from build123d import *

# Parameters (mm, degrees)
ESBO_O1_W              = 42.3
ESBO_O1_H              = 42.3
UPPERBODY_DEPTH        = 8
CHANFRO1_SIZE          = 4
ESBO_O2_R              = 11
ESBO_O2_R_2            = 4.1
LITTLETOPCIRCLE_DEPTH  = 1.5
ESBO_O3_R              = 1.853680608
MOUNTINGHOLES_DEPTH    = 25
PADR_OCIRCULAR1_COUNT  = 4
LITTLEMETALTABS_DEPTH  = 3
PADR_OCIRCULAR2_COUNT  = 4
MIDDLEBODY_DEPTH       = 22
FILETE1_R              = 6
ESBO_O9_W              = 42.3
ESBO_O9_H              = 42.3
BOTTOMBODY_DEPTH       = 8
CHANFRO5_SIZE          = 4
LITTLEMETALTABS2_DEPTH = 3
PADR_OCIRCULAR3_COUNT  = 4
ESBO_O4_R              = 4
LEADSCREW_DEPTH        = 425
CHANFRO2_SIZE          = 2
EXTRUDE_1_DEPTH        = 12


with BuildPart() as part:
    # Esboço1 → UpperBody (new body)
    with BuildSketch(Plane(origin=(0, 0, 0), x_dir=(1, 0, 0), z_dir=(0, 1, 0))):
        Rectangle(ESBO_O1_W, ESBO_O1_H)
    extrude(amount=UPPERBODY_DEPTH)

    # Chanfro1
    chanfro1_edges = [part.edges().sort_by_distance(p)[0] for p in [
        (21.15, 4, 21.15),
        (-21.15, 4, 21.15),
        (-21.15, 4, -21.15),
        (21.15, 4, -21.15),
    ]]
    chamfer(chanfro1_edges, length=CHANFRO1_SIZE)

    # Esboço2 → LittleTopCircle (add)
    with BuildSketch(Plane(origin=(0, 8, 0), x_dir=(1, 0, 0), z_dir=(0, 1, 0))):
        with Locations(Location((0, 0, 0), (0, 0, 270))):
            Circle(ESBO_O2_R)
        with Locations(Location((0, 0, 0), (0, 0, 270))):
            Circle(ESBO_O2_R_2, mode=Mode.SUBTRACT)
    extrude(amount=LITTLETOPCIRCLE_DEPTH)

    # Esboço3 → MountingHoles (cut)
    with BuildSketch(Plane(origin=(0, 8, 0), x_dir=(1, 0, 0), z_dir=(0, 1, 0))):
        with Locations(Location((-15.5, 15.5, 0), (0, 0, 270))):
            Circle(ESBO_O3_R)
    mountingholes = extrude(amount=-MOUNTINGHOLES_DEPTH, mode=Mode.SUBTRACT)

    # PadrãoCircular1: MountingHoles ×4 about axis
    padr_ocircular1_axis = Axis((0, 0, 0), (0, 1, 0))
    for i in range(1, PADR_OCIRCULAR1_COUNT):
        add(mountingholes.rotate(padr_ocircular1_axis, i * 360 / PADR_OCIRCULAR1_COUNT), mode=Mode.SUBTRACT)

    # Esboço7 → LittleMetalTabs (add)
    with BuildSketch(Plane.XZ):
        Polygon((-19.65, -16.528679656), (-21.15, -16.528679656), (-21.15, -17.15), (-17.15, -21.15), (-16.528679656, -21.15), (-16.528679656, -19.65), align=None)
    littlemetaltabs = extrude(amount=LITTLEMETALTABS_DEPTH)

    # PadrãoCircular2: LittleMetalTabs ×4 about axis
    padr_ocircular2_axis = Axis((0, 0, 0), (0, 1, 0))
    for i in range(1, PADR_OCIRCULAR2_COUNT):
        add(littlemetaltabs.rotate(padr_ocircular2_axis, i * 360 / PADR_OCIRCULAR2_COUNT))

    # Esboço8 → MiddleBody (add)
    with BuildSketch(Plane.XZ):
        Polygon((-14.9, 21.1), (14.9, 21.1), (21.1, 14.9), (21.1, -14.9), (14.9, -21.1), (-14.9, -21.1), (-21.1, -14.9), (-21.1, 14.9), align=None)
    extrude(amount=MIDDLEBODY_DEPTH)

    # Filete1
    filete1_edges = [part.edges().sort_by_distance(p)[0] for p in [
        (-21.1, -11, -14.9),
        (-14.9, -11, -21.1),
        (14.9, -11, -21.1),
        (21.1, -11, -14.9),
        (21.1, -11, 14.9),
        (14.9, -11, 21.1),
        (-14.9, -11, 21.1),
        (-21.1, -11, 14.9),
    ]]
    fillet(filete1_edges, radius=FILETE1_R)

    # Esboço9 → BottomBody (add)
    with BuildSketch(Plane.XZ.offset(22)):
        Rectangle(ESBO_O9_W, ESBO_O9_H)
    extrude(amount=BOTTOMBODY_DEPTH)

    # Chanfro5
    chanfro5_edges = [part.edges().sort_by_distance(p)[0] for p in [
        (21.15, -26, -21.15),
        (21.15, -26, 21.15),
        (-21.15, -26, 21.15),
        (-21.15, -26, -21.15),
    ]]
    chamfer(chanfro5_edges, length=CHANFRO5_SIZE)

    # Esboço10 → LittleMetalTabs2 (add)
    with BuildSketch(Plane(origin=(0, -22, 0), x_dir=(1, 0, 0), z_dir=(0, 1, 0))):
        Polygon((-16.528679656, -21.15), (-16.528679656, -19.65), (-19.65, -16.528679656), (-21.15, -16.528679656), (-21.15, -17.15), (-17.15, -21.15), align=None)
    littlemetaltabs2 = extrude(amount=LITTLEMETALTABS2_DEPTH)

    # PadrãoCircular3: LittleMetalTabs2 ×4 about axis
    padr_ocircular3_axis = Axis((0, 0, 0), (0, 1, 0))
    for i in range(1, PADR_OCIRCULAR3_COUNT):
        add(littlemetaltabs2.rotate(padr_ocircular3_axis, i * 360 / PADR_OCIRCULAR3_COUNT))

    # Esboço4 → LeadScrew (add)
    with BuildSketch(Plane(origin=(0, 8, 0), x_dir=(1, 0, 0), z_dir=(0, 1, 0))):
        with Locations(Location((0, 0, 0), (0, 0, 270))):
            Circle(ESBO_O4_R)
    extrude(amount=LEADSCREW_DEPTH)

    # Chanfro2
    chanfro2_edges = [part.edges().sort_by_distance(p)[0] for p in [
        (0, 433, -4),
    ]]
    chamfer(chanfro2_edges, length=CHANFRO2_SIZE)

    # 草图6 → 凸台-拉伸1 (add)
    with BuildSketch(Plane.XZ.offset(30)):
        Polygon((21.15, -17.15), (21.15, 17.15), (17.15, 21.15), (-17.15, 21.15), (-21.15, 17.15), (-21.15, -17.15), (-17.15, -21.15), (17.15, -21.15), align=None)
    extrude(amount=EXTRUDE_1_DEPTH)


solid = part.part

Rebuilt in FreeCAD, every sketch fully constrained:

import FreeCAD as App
import Part
import Sketcher
Q = App.Units.Quantity


def edges_at(feature, points):
    """Names of the edges that pass closest to the given points."""
    edges = feature.Shape.Edges
    near = lambda p: min(range(len(edges)), key=lambda i: edges[i].distToShape(Part.Vertex(*p))[0])
    return sorted({f"Edge{near(p) + 1}" for p in points})


def add_polygon(sketch, points):
    """Adds a closed chain of lines whose ends are joined by coincident constraints."""
    first, n = sketch.GeometryCount, len(points)
    for a, b in zip(points, points[1:] + points[:1]):
        sketch.addGeometry(Part.LineSegment(App.Vector(*a, 0), App.Vector(*b, 0)), False)
    for i in range(n):
        sketch.addConstraint(Sketcher.Constraint("Coincident", first + i, 2, first + (i + 1) % n, 1))

doc = App.newDocument("Part")
body = doc.addObject("PartDesign::Body", "Body")

sketch1 = body.newObject("Sketcher::SketchObject", "Sketch")
sketch1.AttachmentSupport = (doc.getObject("XZ_Plane"), [""])
sketch1.MapMode = "FlatFace"
add_polygon(sketch1, [(-21, -21), (-21, 21), (21, 21), (21, -21)])
sketch1.addConstraint(Sketcher.Constraint("Vertical", 0))
sketch1.addConstraint(Sketcher.Constraint("Horizontal", 1))
sketch1.addConstraint(Sketcher.Constraint("Vertical", 2))
sketch1.addConstraint(Sketcher.Constraint("Horizontal", 3))
sketch1.addConstraint(Sketcher.Constraint("Symmetric", 0, 2, 2, 2, -1, 1))
sketch1.addConstraint(Sketcher.Constraint("Equal", 3, 0))
sketch1.addConstraint(Sketcher.Constraint("DistanceX", 1, 1, 1, 2, Q("42.3 mm")))
pad1 = body.newObject("PartDesign::Pad", "Pad")
pad1.Profile = sketch1
pad1.Length = 8
pad1.Reversed = True
doc.recompute()

chamfer = body.newObject("PartDesign::Chamfer", "Chamfer")
chamfer.Base = (pad1, edges_at(pad1, [
    (21.15, 4, 21.15),
    (-21.15, 4, 21.15),
    (-21.15, 4, -21.15),
    (21.15, 4, -21.15),
]))
chamfer.Size = 4

sketch2 = body.newObject("Sketcher::SketchObject", "Sketch001")
sketch2.AttachmentSupport = (doc.getObject("XZ_Plane"), [""])
sketch2.MapMode = "FlatFace"
sketch2.AttachmentOffset = App.Placement(App.Vector(0, 0, -8), App.Rotation())
sketch2.addGeometry(Part.Circle(App.Vector(0, 0, 0), App.Vector(0, 0, 1), 11), False)
sketch2.addGeometry(Part.Circle(App.Vector(0, 0, 0), App.Vector(0, 0, 1), 4.1), False)
sketch2.addConstraint(Sketcher.Constraint("Coincident", 0, 3, -1, 1))
sketch2.addConstraint(Sketcher.Constraint("Coincident", 1, 3, -1, 1))
sketch2.addConstraint(Sketcher.Constraint("Diameter", 0, Q("22 mm")))
sketch2.addConstraint(Sketcher.Constraint("Diameter", 1, Q("8.2 mm")))
pad2 = body.newObject("PartDesign::Pad", "Pad001")
pad2.Profile = sketch2
pad2.Length = 1.5
pad2.Reversed = True

sketch3 = body.newObject("Sketcher::SketchObject", "Sketch002")
sketch3.AttachmentSupport = (doc.getObject("XZ_Plane"), [""])
sketch3.MapMode = "FlatFace"
sketch3.AttachmentOffset = App.Placement(App.Vector(0, 0, -8), App.Rotation())
sketch3.addGeometry(Part.Circle(App.Vector(-15.5, -15.5, 0), App.Vector(0, 0, 1), 1.9), False)
sketch3.addConstraint(Sketcher.Constraint("DistanceX", 0, 3, -1, 1, Q("15.5 mm")))
sketch3.addConstraint(Sketcher.Constraint("DistanceY", 0, 3, -1, 1, Q("15.5 mm")))
sketch3.addConstraint(Sketcher.Constraint("Diameter", 0, Q("3.707361 mm")))
pocket1 = body.newObject("PartDesign::Pocket", "Pocket")
pocket1.Profile = sketch3
pocket1.Length = 25
pocket1.Reversed = True
doc.recompute()

polarpattern = body.newObject("PartDesign::PolarPattern", "PolarPattern")
polarpattern.Originals = [pocket1]
polarpattern.Axis = (doc.getObject("Y_Axis"), [""])
polarpattern.Angle = 360
polarpattern.Occurrences = 4
body.Tip = polarpattern

sketch4 = body.newObject("Sketcher::SketchObject", "Sketch003")
sketch4.AttachmentSupport = (doc.getObject("XZ_Plane"), [""])
sketch4.MapMode = "FlatFace"
add_polygon(sketch4, [(-19.6, -16.5), (-21.1, -16.5), (-21.1, -17.1), (-17.1, -21.1), (-16.5, -21.1), (-16.5, -19.6)])
sketch4.addConstraint(Sketcher.Constraint("Horizontal", 0))
sketch4.addConstraint(Sketcher.Constraint("Vertical", 1))
sketch4.addConstraint(Sketcher.Constraint("Horizontal", 3))
sketch4.addConstraint(Sketcher.Constraint("Vertical", 4))
sketch4.addConstraint(Sketcher.Constraint("Parallel", 2, 5))
sketch4.addConstraint(Sketcher.Constraint("Equal", 3, 1))
sketch4.addConstraint(Sketcher.Constraint("Equal", 0, 4))
sketch4.addConstraint(Sketcher.Constraint("DistanceX", 0, 2, 0, 1, Q("1.5 mm")))
sketch4.addConstraint(Sketcher.Constraint("DistanceX", 1, 2, 2, 2, Q("4 mm")))
sketch4.addConstraint(Sketcher.Constraint("DistanceX", 0, 2, -1, 1, Q("21.15 mm")))
sketch4.addConstraint(Sketcher.Constraint("DistanceY", 1, 2, -1, 1, Q("17.15 mm")))
sketch4.addConstraint(Sketcher.Constraint("DistanceX", 3, 1, 3, 2, Q("0.62132 mm")))
pad3 = body.newObject("PartDesign::Pad", "Pad002")
pad3.Profile = sketch4
pad3.Length = 3
doc.recompute()

polarpattern2 = body.newObject("PartDesign::PolarPattern", "PolarPattern001")
polarpattern2.Originals = [pad3]
polarpattern2.Axis = (doc.getObject("Y_Axis"), [""])
polarpattern2.Angle = 360
polarpattern2.Occurrences = 4
body.Tip = polarpattern2

sketch5 = body.newObject("Sketcher::SketchObject", "Sketch004")
sketch5.AttachmentSupport = (doc.getObject("XZ_Plane"), [""])
sketch5.MapMode = "FlatFace"
add_polygon(sketch5, [(15, 21), (-15, 21), (-21, 15), (-21, -15), (-15, -21), (15, -21), (21, -15), (21, 15)])
sketch5.addConstraint(Sketcher.Constraint("Horizontal", 0))
sketch5.addConstraint(Sketcher.Constraint("Vertical", 2))
sketch5.addConstraint(Sketcher.Constraint("Horizontal", 4))
sketch5.addConstraint(Sketcher.Constraint("Vertical", 6))
sketch5.addConstraint(Sketcher.Constraint("Symmetric", 0, 2, 4, 2, -1, 1))
sketch5.addConstraint(Sketcher.Constraint("Symmetric", 1, 2, 5, 2, -1, 1))
sketch5.addConstraint(Sketcher.Constraint("Perpendicular", 1, 3))
sketch5.addConstraint(Sketcher.Constraint("Perpendicular", 5, 7))
sketch5.addConstraint(Sketcher.Constraint("Horizontal", 2, 2, 5, 2))
sketch5.addConstraint(Sketcher.Constraint("Horizontal", 1, 2, 6, 2))
sketch5.addConstraint(Sketcher.Constraint("Vertical", 0, 2, 3, 2))
sketch5.addConstraint(Sketcher.Constraint("Equal", 4, 2))
sketch5.addConstraint(Sketcher.Constraint("DistanceX", 0, 2, 0, 1, Q("29.8 mm")))
sketch5.addConstraint(Sketcher.Constraint("DistanceY", 2, 2, 0, 2, Q("36 mm")))
pad4 = body.newObject("PartDesign::Pad", "Pad003")
pad4.Profile = sketch5
pad4.Length = 22
doc.recompute()

fillet = body.newObject("PartDesign::Fillet", "Fillet")
fillet.Base = (pad4, edges_at(pad4, [
    (-21.1, -11, -14.9),
    (-14.9, -11, -21.1),
    (14.9, -11, -21.1),
    (21.1, -11, -14.9),
    (21.1, -11, 14.9),
    (14.9, -11, 21.1),
    (-14.9, -11, 21.1),
    (-21.1, -11, 14.9),
]))
fillet.Radius = 6

sketch6 = body.newObject("Sketcher::SketchObject", "Sketch005")
sketch6.AttachmentSupport = (doc.getObject("XZ_Plane"), [""])
sketch6.MapMode = "FlatFace"
sketch6.AttachmentOffset = App.Placement(App.Vector(0, 0, 22), App.Rotation())
add_polygon(sketch6, [(-21, 21), (-21, -21), (21, -21), (21, 21)])
sketch6.addConstraint(Sketcher.Constraint("Vertical", 0))
sketch6.addConstraint(Sketcher.Constraint("Horizontal", 1))
sketch6.addConstraint(Sketcher.Constraint("Vertical", 2))
sketch6.addConstraint(Sketcher.Constraint("Horizontal", 3))
sketch6.addConstraint(Sketcher.Constraint("Symmetric", 0, 2, 2, 2, -1, 1))
sketch6.addConstraint(Sketcher.Constraint("Equal", 3, 0))
sketch6.addConstraint(Sketcher.Constraint("DistanceX", 1, 1, 1, 2, Q("42.3 mm")))
pad5 = body.newObject("PartDesign::Pad", "Pad004")
pad5.Profile = sketch6
pad5.Length = 8
doc.recompute()

chamfer2 = body.newObject("PartDesign::Chamfer", "Chamfer001")
chamfer2.Base = (pad5, edges_at(pad5, [
    (21.15, -26, -21.15),
    (21.15, -26, 21.15),
    (-21.15, -26, 21.15),
    (-21.15, -26, -21.15),
]))
chamfer2.Size = 4

sketch7 = body.newObject("Sketcher::SketchObject", "Sketch006")
sketch7.AttachmentSupport = (doc.getObject("XZ_Plane"), [""])
sketch7.MapMode = "FlatFace"
sketch7.AttachmentOffset = App.Placement(App.Vector(0, 0, 22), App.Rotation())
add_polygon(sketch7, [(-16.5, 21.1), (-16.5, 19.6), (-19.6, 16.5), (-21.1, 16.5), (-21.1, 17.1), (-17.1, 21.1)])
sketch7.addConstraint(Sketcher.Constraint("Vertical", 0))
sketch7.addConstraint(Sketcher.Constraint("Horizontal", 2))
sketch7.addConstraint(Sketcher.Constraint("Vertical", 3))
sketch7.addConstraint(Sketcher.Constraint("Horizontal", 5))
sketch7.addConstraint(Sketcher.Constraint("Parallel", 1, 4))
sketch7.addConstraint(Sketcher.Constraint("Equal", 2, 0))
sketch7.addConstraint(Sketcher.Constraint("Equal", 5, 3))
sketch7.addConstraint(Sketcher.Constraint("DistanceX", 2, 2, 2, 1, Q("1.5 mm")))
sketch7.addConstraint(Sketcher.Constraint("DistanceX", 3, 2, 4, 2, Q("4 mm")))
sketch7.addConstraint(Sketcher.Constraint("DistanceY", -1, 1, 0, 2, Q("19.65 mm")))
sketch7.addConstraint(Sketcher.Constraint("DistanceX", 1, 2, -1, 1, Q("19.65 mm")))
sketch7.addConstraint(Sketcher.Constraint("DistanceX", 5, 1, 5, 2, Q("0.62132 mm")))
pad6 = body.newObject("PartDesign::Pad", "Pad005")
pad6.Profile = sketch7
pad6.Length = 3
pad6.Reversed = True
doc.recompute()

polarpattern3 = body.newObject("PartDesign::PolarPattern", "PolarPattern002")
polarpattern3.Originals = [pad6]
polarpattern3.Axis = (doc.getObject("Y_Axis"), [""])
polarpattern3.Angle = 360
polarpattern3.Occurrences = 4
body.Tip = polarpattern3

sketch8 = body.newObject("Sketcher::SketchObject", "Sketch007")
sketch8.AttachmentSupport = (doc.getObject("XZ_Plane"), [""])
sketch8.MapMode = "FlatFace"
sketch8.AttachmentOffset = App.Placement(App.Vector(0, 0, -8), App.Rotation())
sketch8.addGeometry(Part.Circle(App.Vector(0, 0, 0), App.Vector(0, 0, 1), 4), False)
sketch8.addConstraint(Sketcher.Constraint("Coincident", 0, 3, -1, 1))
sketch8.addConstraint(Sketcher.Constraint("Diameter", 0, Q("8 mm")))
pad7 = body.newObject("PartDesign::Pad", "Pad006")
pad7.Profile = sketch8
pad7.Length = 425
pad7.Reversed = True
doc.recompute()

chamfer3 = body.newObject("PartDesign::Chamfer", "Chamfer002")
chamfer3.Base = (pad7, edges_at(pad7, [(0, 433, -4)]))
chamfer3.Size = 2

sketch9 = body.newObject("Sketcher::SketchObject", "Sketch008")
sketch9.AttachmentSupport = (doc.getObject("XZ_Plane"), [""])
sketch9.MapMode = "FlatFace"
sketch9.AttachmentOffset = App.Placement(App.Vector(0, 0, 30), App.Rotation())
add_polygon(sketch9, [(21, -17), (21, 17), (17, 21), (-17, 21), (-21, 17), (-21, -17), (-17, -21), (17, -21)])
sketch9.addConstraint(Sketcher.Constraint("Vertical", 0))
sketch9.addConstraint(Sketcher.Constraint("Horizontal", 2))
sketch9.addConstraint(Sketcher.Constraint("Vertical", 4))
sketch9.addConstraint(Sketcher.Constraint("Horizontal", 6))
sketch9.addConstraint(Sketcher.Constraint("Symmetric", 0, 2, 4, 2, -1, 1))
sketch9.addConstraint(Sketcher.Constraint("Symmetric", 1, 2, 5, 2, -1, 1))
sketch9.addConstraint(Sketcher.Constraint("Perpendicular", 1, 3))
sketch9.addConstraint(Sketcher.Constraint("Perpendicular", 5, 7))
sketch9.addConstraint(Sketcher.Constraint("Horizontal", 0, 2, 3, 2))
sketch9.addConstraint(Sketcher.Constraint("Horizontal", 4, 2, 7, 2))
sketch9.addConstraint(Sketcher.Constraint("Vertical", 2, 2, 5, 2))
sketch9.addConstraint(Sketcher.Constraint("Equal", 6, 0))
sketch9.addConstraint(Sketcher.Constraint("DistanceX", 2, 2, 2, 1, Q("34.3 mm")))
sketch9.addConstraint(Sketcher.Constraint("DistanceX", 1, 2, 0, 2, Q("4 mm")))
pad8 = body.newObject("PartDesign::Pad", "Pad007")
pad8.Profile = sketch9
pad8.Length = 12

doc.recompute()
